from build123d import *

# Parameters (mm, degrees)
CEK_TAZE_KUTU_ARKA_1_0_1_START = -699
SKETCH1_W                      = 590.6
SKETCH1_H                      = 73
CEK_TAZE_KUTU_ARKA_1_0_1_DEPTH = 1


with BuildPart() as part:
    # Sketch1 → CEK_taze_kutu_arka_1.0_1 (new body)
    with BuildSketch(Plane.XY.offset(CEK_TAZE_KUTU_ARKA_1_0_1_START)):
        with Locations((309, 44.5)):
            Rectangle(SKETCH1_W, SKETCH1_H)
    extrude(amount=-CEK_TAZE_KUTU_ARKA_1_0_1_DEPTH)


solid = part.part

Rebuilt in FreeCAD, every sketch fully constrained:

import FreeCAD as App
import Part
import Sketcher

V = App.Vector
Q = App.Units.Quantity

doc = App.newDocument("Part")
body = doc.addObject("PartDesign::Body", "Body")

# Sketch on XY plane
sketch1 = doc.addObject("Sketcher::SketchObject", "Sketch")
body.addObject(sketch1)
sketch1.AttachmentSupport = (doc.XY_Plane, [""])
sketch1.MapMode = "FlatFace"
sketch1.AttachmentOffset = App.Placement(V(0, 0, -699), App.Rotation())
sketch1.addGeometry(Part.LineSegment(V(14, 81, 0), V(14, 8, 0)), False)
sketch1.addGeometry(Part.LineSegment(V(14, 8, 0), V(604, 8, 0)), False)
sketch1.addGeometry(Part.LineSegment(V(604, 8, 0), V(604, 81, 0)), False)
sketch1.addGeometry(Part.LineSegment(V(604, 81, 0), V(14, 81, 0)), False)
sketch1.addConstraint(Sketcher.Constraint("Coincident", 0, 2, 1, 1))
sketch1.addConstraint(Sketcher.Constraint("Coincident", 1, 2, 2, 1))
sketch1.addConstraint(Sketcher.Constraint("Coincident", 2, 2, 3, 1))
sketch1.addConstraint(Sketcher.Constraint("Coincident", 3, 2, 0, 1))
sketch1.addConstraint(Sketcher.Constraint("Vertical", 0))
sketch1.addConstraint(Sketcher.Constraint("Horizontal", 1))
sketch1.addConstraint(Sketcher.Constraint("Vertical", 2))
sketch1.addConstraint(Sketcher.Constraint("Horizontal", 3))
sketch1.addConstraint(Sketcher.Constraint("DistanceY", 0, 2, 0, 1, Q("73 mm")))
sketch1.addConstraint(Sketcher.Constraint("DistanceX", 1, 1, 1, 2, Q("590.6 mm")))
sketch1.addConstraint(Sketcher.Constraint("DistanceY", -1, 1, 0, 2, Q("8 mm")))
sketch1.addConstraint(Sketcher.Constraint("DistanceX", -1, 1, 0, 2, Q("13.7 mm")))
pad1 = doc.addObject("PartDesign::Pad", "Pad")
body.addObject(pad1)
pad1.Profile = sketch1
pad1.Length = 1
pad1.Reversed = True

doc.recompute()
